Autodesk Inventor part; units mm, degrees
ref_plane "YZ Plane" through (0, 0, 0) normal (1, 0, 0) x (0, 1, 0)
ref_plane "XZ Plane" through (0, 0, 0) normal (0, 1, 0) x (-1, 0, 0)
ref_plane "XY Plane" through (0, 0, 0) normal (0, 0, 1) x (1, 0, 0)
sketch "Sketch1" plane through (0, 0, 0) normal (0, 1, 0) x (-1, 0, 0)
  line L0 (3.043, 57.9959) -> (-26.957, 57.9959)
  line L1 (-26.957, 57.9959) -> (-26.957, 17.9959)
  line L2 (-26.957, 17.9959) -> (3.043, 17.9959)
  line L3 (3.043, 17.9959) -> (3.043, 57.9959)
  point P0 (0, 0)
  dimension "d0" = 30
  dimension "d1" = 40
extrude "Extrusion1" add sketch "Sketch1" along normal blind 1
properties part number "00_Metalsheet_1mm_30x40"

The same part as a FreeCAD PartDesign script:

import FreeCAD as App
import Part
import Sketcher
Q = App.Units.Quantity


def add_polygon(sketch, points):
    """Adds a closed chain of lines whose ends are joined by coincident constraints."""
    first, n = sketch.GeometryCount, len(points)
    for a, b in zip(points, points[1:] + points[:1]):
        sketch.addGeometry(Part.LineSegment(App.Vector(*a, 0), App.Vector(*b, 0)), False)
    for i in range(n):
        sketch.addConstraint(Sketcher.Constraint("Coincident", first + i, 2, first + (i + 1) % n, 1))

doc = App.newDocument("Part")
body = doc.addObject("PartDesign::Body", "Body")

# Sketch on XZ plane
sketch1 = body.newObject("Sketcher::SketchObject", "Sketch")
sketch1.AttachmentSupport = (doc.getObject("XZ_Plane"), [""])
sketch1.MapMode = "FlatFace"
add_polygon(sketch1, [(-3, 18), (-3, 58), (27, 58), (27, 18)])  # lines 0-3
sketch1.addConstraint([
    Sketcher.Constraint("Vertical", 0),
    Sketcher.Constraint("Horizontal", 1),
    Sketcher.Constraint("Vertical", 2),
    Sketcher.Constraint("Horizontal", 3),
    Sketcher.Constraint("DistanceX", 1, 1, 1, 2, Q("30 mm")),
    Sketcher.Constraint("DistanceY", 0, 1, 0, 2, Q("40 mm")),
    Sketcher.Constraint("DistanceX", 0, 2, -1, 1, Q("3.043 mm")),
    Sketcher.Constraint("DistanceY", -1, 1, 0, 2, Q("57.996 mm")),
])
pad1 = body.newObject("PartDesign::Pad", "Pad")
pad1.Profile = sketch1
pad1.Length = 1
pad1.Reversed = True

doc.recompute()
